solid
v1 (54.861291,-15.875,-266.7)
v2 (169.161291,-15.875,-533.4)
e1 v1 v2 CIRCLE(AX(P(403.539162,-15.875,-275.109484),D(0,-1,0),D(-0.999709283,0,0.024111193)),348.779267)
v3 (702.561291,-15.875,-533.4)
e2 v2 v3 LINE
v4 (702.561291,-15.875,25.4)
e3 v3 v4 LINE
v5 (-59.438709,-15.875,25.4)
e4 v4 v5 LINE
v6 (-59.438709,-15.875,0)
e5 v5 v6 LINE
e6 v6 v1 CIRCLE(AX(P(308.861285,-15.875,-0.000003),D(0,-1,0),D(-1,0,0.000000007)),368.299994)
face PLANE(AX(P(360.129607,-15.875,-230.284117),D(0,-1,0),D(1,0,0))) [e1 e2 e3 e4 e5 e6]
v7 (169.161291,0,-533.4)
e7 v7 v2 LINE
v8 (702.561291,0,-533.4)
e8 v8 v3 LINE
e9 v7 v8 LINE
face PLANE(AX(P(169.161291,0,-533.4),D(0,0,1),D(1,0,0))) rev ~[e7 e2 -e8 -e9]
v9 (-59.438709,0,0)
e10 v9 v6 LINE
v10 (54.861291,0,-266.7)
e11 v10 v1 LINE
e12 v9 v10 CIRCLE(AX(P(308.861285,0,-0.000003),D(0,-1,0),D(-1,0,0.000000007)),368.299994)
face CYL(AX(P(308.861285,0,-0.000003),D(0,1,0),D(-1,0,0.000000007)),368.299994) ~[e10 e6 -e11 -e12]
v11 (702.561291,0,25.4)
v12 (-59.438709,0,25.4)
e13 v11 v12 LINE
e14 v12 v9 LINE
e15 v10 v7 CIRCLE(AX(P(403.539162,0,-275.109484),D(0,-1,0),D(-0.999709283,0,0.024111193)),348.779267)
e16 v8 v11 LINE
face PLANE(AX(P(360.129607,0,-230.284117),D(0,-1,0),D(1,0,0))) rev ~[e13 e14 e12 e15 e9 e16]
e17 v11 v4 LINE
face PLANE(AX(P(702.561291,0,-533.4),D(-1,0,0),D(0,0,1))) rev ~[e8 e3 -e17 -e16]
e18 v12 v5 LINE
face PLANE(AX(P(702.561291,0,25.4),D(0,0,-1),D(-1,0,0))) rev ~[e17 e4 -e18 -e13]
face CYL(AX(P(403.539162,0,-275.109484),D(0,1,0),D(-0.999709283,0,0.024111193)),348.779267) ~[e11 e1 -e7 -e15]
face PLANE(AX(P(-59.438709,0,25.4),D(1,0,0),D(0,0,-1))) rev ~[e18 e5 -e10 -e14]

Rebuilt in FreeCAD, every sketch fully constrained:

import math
import FreeCAD as App
import Part
import Sketcher
Q = App.Units.Quantity

doc = App.newDocument("Part")
body = doc.addObject("PartDesign::Body", "Body")

sketch1 = body.newObject("Sketcher::SketchObject", "Sketch")
sketch1.AttachmentSupport = (doc.getObject("XZ_Plane"), [""])
sketch1.MapMode = "FlatFace"
sketch1.addGeometry(Part.LineSegment(App.Vector(702.561291, 25.4, 0), App.Vector(-59.438709, 25.4, 0)), False)
sketch1.addGeometry(Part.LineSegment(App.Vector(-59.438709, 25.4, 0), App.Vector(-59.438709, 0, 0)), False)
sketch1.addGeometry(Part.ArcOfCircle(Part.Circle(App.Vector(308.861285, -0.000003, 0), App.Vector(0, 0, 1), 368.299994), math.radians(180), math.radians(226.397181)), False)
sketch1.addGeometry(Part.ArcOfCircle(Part.Circle(App.Vector(403.539162, -275.109484, 0), App.Vector(0, 0, 1), 348.779267), math.radians(178.618397), math.radians(227.778784)), False)
sketch1.addGeometry(Part.LineSegment(App.Vector(169.161291, -533.4, 0), App.Vector(702.561291, -533.4, 0)), False)
sketch1.addGeometry(Part.LineSegment(App.Vector(702.561291, -533.4, 0), App.Vector(702.561291, 25.4, 0)), False)
sketch1.addConstraint(Sketcher.Constraint("Coincident", 0, 2, 1, 1))
sketch1.addConstraint(Sketcher.Constraint("Tangent", 1, 2, 2, 1))
sketch1.addConstraint(Sketcher.Constraint("Coincident", 2, 2, 3, 1))
sketch1.addConstraint(Sketcher.Constraint("Coincident", 3, 2, 4, 1))
sketch1.addConstraint(Sketcher.Constraint("Coincident", 4, 2, 5, 1))
sketch1.addConstraint(Sketcher.Constraint("Coincident", 5, 2, 0, 1))
sketch1.addConstraint(Sketcher.Constraint("Horizontal", 0))
sketch1.addConstraint(Sketcher.Constraint("Vertical", 1))
sketch1.addConstraint(Sketcher.Constraint("Horizontal", 4))
sketch1.addConstraint(Sketcher.Constraint("Vertical", 5))
sketch1.addConstraint(Sketcher.Constraint("PointOnObject", 1, 2, -1))
sketch1.addConstraint(Sketcher.Constraint("DistanceX", 0, 2, 0, 1, Q("30 in")))
sketch1.addConstraint(Sketcher.Constraint("DistanceX", 4, 1, 4, 2, Q("21 in")))
sketch1.addConstraint(Sketcher.Constraint("DistanceY", 1, 2, 1, 1, Q("1 in")))
sketch1.addConstraint(Sketcher.Constraint("DistanceY", 5, 1, 5, 2, Q("22 in")))
sketch1.addConstraint(Sketcher.Constraint("DistanceY", 2, 2, -1, 1, Q("10.5 in")))
sketch1.addConstraint(Sketcher.Constraint("Radius", 2, Q("368.299994 mm")))
sketch1.addConstraint(Sketcher.Constraint("Radius", 3, Q("348.779267 mm")))
sketch1.addConstraint(Sketcher.Constraint("DistanceX", -1, 1, 3, 3, Q("403.539162 mm")))
pad1 = body.newObject("PartDesign::Pad", "Pad")
pad1.Profile = sketch1
pad1.Length = Q("0.625 in")

doc.recompute()
